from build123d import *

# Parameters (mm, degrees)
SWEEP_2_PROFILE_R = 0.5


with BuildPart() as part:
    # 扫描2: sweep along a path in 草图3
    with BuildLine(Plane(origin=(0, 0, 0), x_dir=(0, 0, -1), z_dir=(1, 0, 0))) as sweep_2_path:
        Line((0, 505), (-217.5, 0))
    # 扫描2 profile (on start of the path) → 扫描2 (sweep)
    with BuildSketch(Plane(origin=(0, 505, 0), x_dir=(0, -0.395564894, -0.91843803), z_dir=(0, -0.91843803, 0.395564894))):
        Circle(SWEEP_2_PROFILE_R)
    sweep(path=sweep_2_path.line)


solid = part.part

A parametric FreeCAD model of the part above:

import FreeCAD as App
import Part
import Sketcher

doc = App.newDocument("Part")
body = doc.addObject("PartDesign::Body", "Body")

sketch1 = doc.addObject("Sketcher::SketchObject", "Sketch")
body.addObject(sketch1)
sketch1.Placement = App.Placement(App.Vector(0, 505, 0), App.Rotation(App.Vector(0, -0.395564894, -0.91843803), App.Vector(1, 0, 0), App.Vector(0, -0.91843803, 0.395564894), "ZXY"))
sketch1.addGeometry(Part.Circle(App.Vector(0, 0, 0), App.Vector(0, 0, 1), 0.5), False)
sketch1.addConstraint(Sketcher.Constraint("Coincident", 0, 3, -1, 1))
sketch1.addConstraint(Sketcher.Constraint("Diameter", 0, 1.0))

sketch2 = doc.addObject("Sketcher::SketchObject", "Sketch001")
body.addObject(sketch2)
sketch2.Placement = App.Placement(App.Vector(0, 79.018151, 183.46743), App.Rotation(App.Vector(0, 0.91843803, -0.395564894), App.Vector(1, 0, 0), App.Vector(0, -0.395564894, -0.91843803), "ZXY"))
sketch2.addGeometry(Part.LineSegment(App.Vector(463.811205, 0, 0), App.Vector(-86.035364, 0, 0)), False)
sketch2.addConstraint(Sketcher.Constraint("Horizontal", 0))
sketch2.addConstraint(Sketcher.Constraint("PointOnObject", 0, 1, -1))
sketch2.addConstraint(Sketcher.Constraint("DistanceX", 0, 2, 0, 1, 549.84657))
sketch2.addConstraint(Sketcher.Constraint("DistanceX", -1, 1, 0, 1, 463.811205))
doc.recompute()

additivepipe = doc.addObject("PartDesign::AdditivePipe", "AdditivePipe")
body.addObject(additivepipe)
additivepipe.Profile = sketch1
additivepipe.Spine = (sketch2, ["Edge1"])

doc.recompute()
